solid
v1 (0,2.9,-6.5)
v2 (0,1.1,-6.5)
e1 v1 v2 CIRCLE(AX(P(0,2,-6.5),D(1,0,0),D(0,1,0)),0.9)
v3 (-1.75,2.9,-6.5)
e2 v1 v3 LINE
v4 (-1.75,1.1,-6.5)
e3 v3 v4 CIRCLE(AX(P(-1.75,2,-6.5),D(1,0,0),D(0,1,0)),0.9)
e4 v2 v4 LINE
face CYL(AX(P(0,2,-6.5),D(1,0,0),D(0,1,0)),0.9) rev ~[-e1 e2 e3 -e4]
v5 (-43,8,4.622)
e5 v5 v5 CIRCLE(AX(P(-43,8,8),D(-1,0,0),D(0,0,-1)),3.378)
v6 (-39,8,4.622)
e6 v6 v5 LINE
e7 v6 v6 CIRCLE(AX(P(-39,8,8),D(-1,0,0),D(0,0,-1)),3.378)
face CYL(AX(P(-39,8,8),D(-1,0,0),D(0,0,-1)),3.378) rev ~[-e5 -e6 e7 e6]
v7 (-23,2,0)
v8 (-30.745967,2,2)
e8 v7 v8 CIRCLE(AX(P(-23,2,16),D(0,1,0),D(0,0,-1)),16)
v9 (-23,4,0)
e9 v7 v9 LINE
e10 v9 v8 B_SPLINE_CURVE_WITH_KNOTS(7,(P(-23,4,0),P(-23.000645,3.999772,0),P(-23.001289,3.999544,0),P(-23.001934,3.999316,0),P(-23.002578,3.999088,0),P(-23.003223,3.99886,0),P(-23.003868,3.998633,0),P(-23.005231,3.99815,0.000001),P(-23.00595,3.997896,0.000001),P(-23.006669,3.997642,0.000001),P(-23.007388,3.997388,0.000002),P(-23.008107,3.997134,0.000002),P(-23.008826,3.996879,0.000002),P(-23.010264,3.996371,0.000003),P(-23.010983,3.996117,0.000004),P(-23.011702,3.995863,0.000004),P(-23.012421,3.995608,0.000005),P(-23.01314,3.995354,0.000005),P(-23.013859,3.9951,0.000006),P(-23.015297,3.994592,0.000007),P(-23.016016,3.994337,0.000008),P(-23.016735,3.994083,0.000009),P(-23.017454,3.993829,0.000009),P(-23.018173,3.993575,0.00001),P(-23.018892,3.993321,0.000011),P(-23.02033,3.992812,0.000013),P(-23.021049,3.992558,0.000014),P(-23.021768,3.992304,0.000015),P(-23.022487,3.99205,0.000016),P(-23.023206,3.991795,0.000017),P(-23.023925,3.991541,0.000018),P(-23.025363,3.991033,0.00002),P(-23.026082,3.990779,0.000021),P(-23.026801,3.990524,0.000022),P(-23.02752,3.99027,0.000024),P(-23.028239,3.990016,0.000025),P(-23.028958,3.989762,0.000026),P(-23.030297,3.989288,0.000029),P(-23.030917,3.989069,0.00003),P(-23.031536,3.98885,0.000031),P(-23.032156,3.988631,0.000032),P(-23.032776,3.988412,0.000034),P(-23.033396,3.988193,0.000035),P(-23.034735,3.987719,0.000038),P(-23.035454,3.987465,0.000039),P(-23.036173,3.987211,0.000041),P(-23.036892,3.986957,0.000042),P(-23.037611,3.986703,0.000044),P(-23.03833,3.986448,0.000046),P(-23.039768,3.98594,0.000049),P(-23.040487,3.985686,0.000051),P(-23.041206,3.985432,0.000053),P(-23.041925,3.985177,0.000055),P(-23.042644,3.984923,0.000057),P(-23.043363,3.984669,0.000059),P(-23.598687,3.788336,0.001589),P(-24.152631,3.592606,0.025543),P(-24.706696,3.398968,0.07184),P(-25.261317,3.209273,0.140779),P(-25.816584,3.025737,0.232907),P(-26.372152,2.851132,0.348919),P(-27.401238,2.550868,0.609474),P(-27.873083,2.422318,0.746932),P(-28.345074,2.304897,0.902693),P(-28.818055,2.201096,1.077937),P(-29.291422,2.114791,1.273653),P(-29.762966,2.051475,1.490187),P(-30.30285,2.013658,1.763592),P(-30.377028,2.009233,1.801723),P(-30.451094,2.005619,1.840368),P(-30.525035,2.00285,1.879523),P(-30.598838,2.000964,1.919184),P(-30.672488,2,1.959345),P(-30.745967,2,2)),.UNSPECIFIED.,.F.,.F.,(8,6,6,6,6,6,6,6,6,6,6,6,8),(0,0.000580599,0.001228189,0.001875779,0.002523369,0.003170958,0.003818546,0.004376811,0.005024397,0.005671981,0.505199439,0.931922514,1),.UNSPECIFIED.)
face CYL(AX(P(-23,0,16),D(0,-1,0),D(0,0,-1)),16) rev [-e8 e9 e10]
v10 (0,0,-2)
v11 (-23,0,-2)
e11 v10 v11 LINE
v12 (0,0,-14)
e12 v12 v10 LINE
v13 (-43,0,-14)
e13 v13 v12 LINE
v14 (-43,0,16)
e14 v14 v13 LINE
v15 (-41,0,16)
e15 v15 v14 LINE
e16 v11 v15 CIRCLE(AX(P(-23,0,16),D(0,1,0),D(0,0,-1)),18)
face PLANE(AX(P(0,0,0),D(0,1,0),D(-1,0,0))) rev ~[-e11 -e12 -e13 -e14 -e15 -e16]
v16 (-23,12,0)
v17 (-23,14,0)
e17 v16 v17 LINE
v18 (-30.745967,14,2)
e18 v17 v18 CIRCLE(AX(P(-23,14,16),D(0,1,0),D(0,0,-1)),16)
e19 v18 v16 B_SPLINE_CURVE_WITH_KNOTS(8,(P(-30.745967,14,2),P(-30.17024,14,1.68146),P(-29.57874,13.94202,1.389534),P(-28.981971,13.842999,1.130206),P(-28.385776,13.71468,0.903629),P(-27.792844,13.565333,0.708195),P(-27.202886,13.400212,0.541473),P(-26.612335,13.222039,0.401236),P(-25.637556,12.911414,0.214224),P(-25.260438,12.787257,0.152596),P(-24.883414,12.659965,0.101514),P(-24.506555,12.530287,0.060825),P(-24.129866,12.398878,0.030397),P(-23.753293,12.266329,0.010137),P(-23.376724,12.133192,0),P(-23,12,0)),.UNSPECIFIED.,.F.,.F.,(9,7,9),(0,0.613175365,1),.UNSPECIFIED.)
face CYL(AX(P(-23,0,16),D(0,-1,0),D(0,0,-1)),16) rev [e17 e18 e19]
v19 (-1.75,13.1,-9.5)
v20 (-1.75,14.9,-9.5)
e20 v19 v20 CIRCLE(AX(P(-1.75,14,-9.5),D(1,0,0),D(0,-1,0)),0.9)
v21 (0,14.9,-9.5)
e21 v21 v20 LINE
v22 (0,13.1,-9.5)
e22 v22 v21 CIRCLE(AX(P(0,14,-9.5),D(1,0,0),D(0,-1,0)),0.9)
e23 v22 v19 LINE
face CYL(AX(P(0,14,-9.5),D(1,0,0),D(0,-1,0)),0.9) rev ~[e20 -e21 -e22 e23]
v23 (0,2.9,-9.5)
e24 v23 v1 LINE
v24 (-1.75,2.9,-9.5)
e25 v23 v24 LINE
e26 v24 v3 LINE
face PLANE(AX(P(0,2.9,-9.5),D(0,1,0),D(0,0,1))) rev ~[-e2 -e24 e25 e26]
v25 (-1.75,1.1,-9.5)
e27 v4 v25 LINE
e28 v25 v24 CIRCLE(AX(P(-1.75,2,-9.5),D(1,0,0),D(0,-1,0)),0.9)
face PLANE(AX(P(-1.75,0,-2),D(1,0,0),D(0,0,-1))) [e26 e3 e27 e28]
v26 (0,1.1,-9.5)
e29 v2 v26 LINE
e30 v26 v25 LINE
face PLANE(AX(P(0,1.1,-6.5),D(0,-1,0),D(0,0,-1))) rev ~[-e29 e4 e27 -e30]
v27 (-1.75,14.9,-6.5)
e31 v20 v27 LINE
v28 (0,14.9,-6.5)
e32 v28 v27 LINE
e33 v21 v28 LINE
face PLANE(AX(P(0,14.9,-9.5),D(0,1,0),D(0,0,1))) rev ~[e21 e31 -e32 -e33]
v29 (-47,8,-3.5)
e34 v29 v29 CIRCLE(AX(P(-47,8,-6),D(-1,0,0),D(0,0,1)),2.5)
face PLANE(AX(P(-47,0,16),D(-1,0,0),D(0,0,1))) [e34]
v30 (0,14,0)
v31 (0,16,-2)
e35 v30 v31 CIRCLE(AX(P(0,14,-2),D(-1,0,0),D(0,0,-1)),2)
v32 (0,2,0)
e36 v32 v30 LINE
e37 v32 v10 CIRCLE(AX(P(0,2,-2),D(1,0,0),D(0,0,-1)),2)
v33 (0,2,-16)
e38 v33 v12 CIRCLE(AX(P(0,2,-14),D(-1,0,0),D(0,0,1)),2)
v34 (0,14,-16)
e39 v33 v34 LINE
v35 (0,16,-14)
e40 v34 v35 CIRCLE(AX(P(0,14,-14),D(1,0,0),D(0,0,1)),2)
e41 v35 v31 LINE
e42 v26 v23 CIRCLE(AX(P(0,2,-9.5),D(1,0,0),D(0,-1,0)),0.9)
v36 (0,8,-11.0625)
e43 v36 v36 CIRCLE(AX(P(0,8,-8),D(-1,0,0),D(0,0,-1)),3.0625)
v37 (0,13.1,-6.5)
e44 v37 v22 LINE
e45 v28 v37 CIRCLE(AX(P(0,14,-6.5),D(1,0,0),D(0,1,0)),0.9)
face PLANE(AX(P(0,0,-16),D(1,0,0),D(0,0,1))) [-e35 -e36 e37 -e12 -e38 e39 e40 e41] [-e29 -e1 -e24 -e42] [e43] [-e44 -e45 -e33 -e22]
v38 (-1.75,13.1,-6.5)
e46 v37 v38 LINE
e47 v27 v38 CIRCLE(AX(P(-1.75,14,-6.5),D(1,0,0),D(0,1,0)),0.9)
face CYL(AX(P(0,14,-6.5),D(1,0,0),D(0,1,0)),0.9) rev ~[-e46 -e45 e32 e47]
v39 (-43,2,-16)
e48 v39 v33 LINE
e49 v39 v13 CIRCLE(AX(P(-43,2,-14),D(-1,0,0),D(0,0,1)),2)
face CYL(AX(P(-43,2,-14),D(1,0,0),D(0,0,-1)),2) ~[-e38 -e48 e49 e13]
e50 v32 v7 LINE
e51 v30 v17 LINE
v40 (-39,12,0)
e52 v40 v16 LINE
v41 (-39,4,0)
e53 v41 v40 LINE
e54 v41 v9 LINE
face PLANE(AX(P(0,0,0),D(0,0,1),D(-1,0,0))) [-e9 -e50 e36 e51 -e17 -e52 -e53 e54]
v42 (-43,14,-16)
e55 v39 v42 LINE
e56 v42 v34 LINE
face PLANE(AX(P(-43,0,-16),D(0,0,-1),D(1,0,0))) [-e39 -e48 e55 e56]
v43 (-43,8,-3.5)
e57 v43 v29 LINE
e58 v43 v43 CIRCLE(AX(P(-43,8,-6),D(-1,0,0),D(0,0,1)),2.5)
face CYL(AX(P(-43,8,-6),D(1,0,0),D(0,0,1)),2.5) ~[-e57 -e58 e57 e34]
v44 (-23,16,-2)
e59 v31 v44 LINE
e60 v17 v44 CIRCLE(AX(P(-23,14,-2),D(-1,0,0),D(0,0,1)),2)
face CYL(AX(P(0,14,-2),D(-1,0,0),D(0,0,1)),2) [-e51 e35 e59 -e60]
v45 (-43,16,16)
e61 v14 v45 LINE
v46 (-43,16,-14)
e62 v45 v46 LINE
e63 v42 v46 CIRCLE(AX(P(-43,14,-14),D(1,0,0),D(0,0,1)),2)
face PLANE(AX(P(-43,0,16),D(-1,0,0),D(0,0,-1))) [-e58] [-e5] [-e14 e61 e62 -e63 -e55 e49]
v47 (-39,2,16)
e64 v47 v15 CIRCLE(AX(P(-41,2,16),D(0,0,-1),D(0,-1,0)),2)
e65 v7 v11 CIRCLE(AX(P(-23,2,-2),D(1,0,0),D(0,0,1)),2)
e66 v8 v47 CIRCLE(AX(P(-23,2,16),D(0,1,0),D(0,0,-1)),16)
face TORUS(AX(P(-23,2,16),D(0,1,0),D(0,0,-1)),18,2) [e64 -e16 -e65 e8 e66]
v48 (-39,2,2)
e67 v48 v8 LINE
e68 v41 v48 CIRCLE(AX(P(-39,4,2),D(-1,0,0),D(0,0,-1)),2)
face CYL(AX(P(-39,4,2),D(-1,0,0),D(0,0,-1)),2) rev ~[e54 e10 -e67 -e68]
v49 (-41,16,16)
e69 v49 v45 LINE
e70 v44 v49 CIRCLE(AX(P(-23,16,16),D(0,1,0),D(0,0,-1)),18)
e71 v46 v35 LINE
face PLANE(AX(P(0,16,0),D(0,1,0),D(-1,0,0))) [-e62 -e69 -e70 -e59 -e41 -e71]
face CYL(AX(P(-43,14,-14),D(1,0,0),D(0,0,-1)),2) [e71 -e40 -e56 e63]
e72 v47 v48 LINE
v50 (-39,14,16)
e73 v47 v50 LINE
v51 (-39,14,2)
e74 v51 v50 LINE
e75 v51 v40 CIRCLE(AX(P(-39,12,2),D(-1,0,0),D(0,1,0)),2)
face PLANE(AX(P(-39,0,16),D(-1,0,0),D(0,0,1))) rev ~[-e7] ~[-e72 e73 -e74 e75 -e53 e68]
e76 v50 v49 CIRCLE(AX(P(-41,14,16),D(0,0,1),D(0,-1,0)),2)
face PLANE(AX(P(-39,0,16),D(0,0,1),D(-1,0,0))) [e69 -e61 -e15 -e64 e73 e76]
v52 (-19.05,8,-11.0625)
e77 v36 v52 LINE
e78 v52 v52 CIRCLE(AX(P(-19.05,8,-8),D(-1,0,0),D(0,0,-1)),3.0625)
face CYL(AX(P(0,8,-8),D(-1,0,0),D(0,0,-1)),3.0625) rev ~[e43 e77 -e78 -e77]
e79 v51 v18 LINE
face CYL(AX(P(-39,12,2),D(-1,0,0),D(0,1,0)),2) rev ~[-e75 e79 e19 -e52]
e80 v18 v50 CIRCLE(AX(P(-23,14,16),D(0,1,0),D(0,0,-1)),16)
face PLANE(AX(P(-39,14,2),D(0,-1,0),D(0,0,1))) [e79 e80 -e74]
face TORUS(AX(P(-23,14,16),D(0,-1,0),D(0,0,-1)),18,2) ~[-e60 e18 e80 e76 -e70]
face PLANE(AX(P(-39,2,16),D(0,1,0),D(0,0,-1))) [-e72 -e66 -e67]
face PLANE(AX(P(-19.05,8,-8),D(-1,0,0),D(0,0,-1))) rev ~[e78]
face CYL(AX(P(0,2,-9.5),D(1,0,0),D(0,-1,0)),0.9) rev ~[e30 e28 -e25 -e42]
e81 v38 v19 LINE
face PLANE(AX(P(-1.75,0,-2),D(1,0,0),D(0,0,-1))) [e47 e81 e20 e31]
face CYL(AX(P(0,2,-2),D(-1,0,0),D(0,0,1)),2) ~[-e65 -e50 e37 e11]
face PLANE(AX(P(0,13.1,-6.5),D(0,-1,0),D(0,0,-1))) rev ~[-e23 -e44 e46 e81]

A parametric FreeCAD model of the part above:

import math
import FreeCAD as App
import Part
import Sketcher


def edges_at(feature, points):
    """Names of the edges that pass closest to the given points."""
    edges = feature.Shape.Edges
    near = lambda p: min(range(len(edges)), key=lambda i: edges[i].distToShape(Part.Vertex(*p))[0])
    return sorted({f"Edge{near(p) + 1}" for p in points})

doc = App.newDocument("Part")
body = doc.addObject("PartDesign::Body", "Body")

# Sketch on XZ plane
sketch1 = doc.addObject("Sketcher::SketchObject", "Sketch")
body.addObject(sketch1)
sketch1.AttachmentSupport = (doc.XZ_Plane, [""])
sketch1.MapMode = "FlatFace"
sketch1.addGeometry(Part.LineSegment(App.Vector(-43, -16, 0), App.Vector(-43, 16, 0)), False)
sketch1.addGeometry(Part.LineSegment(App.Vector(-43, 16, 0), App.Vector(-39, 16, 0)), False)
sketch1.addGeometry(Part.ArcOfCircle(Part.Circle(App.Vector(-23, 16, 0), App.Vector(0, 0, 1), 16), math.radians(180), math.radians(270)), False)
sketch1.addGeometry(Part.LineSegment(App.Vector(-23, 0, 0), App.Vector(0, 0, 0)), False)
sketch1.addGeometry(Part.LineSegment(App.Vector(0, 0, 0), App.Vector(0, -16, 0)), False)
sketch1.addGeometry(Part.LineSegment(App.Vector(0, -16, 0), App.Vector(-43, -16, 0)), False)
sketch1.addConstraint(Sketcher.Constraint("Coincident", 0, 2, 1, 1))
sketch1.addConstraint(Sketcher.Constraint("Coincident", 1, 2, 2, 1))
sketch1.addConstraint(Sketcher.Constraint("Tangent", 2, 2, 3, 1))
sketch1.addConstraint(Sketcher.Constraint("Coincident", 3, 2, 4, 1))
sketch1.addConstraint(Sketcher.Constraint("Coincident", 4, 2, 5, 1))
sketch1.addConstraint(Sketcher.Constraint("Coincident", 5, 2, 0, 1))
sketch1.addConstraint(Sketcher.Constraint("Vertical", 0))
sketch1.addConstraint(Sketcher.Constraint("Horizontal", 1))
sketch1.addConstraint(Sketcher.Constraint("Horizontal", 3))
sketch1.addConstraint(Sketcher.Constraint("Vertical", 4))
sketch1.addConstraint(Sketcher.Constraint("Horizontal", 5))
sketch1.addConstraint(Sketcher.Constraint("Coincident", 3, 2, -1, 1))
sketch1.addConstraint(Sketcher.Constraint("Horizontal", 2, 3, 0, 2))
sketch1.addConstraint(Sketcher.Constraint("Radius", 2, 16.0))
sketch1.addConstraint(Sketcher.Constraint("DistanceX", 1, 1, 1, 2, 4.0))
sketch1.addConstraint(Sketcher.Constraint("DistanceX", 5, 2, 5, 1, 43.0))
sketch1.addConstraint(Sketcher.Constraint("DistanceY", 0, 1, 0, 2, 32.0))
pad1 = doc.addObject("PartDesign::Pad", "Pad")
body.addObject(pad1)
pad1.Profile = sketch1
pad1.Length = 16
pad1.Reversed = True
doc.recompute()

fillet = doc.addObject("PartDesign::Fillet", "Fillet")
body.addObject(fillet)
fillet.Base = (pad1, edges_at(pad1, [
    (-34.314, 16, 4.686),
    (-11.5, 16, 0),
    (-21.5, 16, -16),
    (-21.5, 0, -16),
    (-34.314, 0, 4.686),
    (-11.5, 0, 0),
]))
fillet.Radius = 2

# Sketch on YZ plane
sketch2 = doc.addObject("Sketcher::SketchObject", "Sketch001")
body.addObject(sketch2)
sketch2.AttachmentSupport = (doc.YZ_Plane, [""])
sketch2.MapMode = "FlatFace"
sketch2.AttachmentOffset = App.Placement(App.Vector(0, 0, -39), App.Rotation())
sketch2.addGeometry(Part.LineSegment(App.Vector(14, 16, 0), App.Vector(14, 2, 0)), False)
sketch2.addGeometry(Part.ArcOfCircle(Part.Circle(App.Vector(12, 2, 0), App.Vector(0, 0, 1), 2), math.radians(-90), math.radians(0)), False)
sketch2.addGeometry(Part.LineSegment(App.Vector(12, 0, 0), App.Vector(4, 0, 0)), False)
sketch2.addGeometry(Part.ArcOfCircle(Part.Circle(App.Vector(4, 2, 0), App.Vector(0, 0, 1), 2), math.radians(180), math.radians(270)), False)
sketch2.addGeometry(Part.LineSegment(App.Vector(2, 2, 0), App.Vector(2, 16, 0)), False)
sketch2.addGeometry(Part.LineSegment(App.Vector(2, 16, 0), App.Vector(14, 16, 0)), False)
sketch2.addConstraint(Sketcher.Constraint("Tangent", 0, 2, 1, 2))
sketch2.addConstraint(Sketcher.Constraint("Tangent", 1, 1, 2, 1))
sketch2.addConstraint(Sketcher.Constraint("Tangent", 2, 2, 3, 2))
sketch2.addConstraint(Sketcher.Constraint("Tangent", 3, 1, 4, 1))
sketch2.addConstraint(Sketcher.Constraint("Coincident", 4, 2, 5, 1))
sketch2.addConstraint(Sketcher.Constraint("Coincident", 5, 2, 0, 1))
sketch2.addConstraint(Sketcher.Constraint("Vertical", 0))
sketch2.addConstraint(Sketcher.Constraint("Horizontal", 2))
sketch2.addConstraint(Sketcher.Constraint("Vertical", 4))
sketch2.addConstraint(Sketcher.Constraint("Horizontal", 5))
sketch2.addConstraint(Sketcher.Constraint("Equal", 1, 3))
sketch2.addConstraint(Sketcher.Constraint("PointOnObject", 1, 1, -1))
sketch2.addConstraint(Sketcher.Constraint("Radius", 1, 2.0))
sketch2.addConstraint(Sketcher.Constraint("DistanceX", -1, 1, 3, 1, 2.0))
sketch2.addConstraint(Sketcher.Constraint("DistanceY", -1, 1, 4, 2, 16.0))
sketch2.addConstraint(Sketcher.Constraint("DistanceX", 2, 2, 2, 1, 8.0))
pocket1 = doc.addObject("PartDesign::Pocket", "Pocket")
body.addObject(pocket1)
pocket1.Profile = sketch2
pocket1.Length = 16
pocket1.Reversed = True

# Sketch on YZ plane
sketch3 = doc.addObject("Sketcher::SketchObject", "Sketch002")
body.addObject(sketch3)
sketch3.AttachmentSupport = (doc.YZ_Plane, [""])
sketch3.MapMode = "FlatFace"
sketch3.AttachmentOffset = App.Placement(App.Vector(0, 0, -39), App.Rotation())
sketch3.addGeometry(Part.Circle(App.Vector(8, 8, 0), App.Vector(0, 0, 1), 3.378), False)
sketch3.addConstraint(Sketcher.Constraint("Diameter", 0, 6.756))
sketch3.addConstraint(Sketcher.Constraint("DistanceX", -1, 1, 0, 3, 8.0))
sketch3.addConstraint(Sketcher.Constraint("DistanceY", -1, 1, 0, 3, 8.0))
doc.recompute()
hole = doc.addObject("PartDesign::Hole", "Hole")
body.addObject(hole)
hole.Profile = sketch3
hole.ThreadType = "None"
hole.Diameter = 6.756
hole.DepthType = "Dimension"
hole.Depth = 8.8
hole.DrillPoint = "Flat"

# Sketch on YZ plane
sketch4 = doc.addObject("Sketcher::SketchObject", "Sketch003")
body.addObject(sketch4)
sketch4.AttachmentSupport = (doc.YZ_Plane, [""])
sketch4.MapMode = "FlatFace"
sketch4.addGeometry(Part.ArcOfCircle(Part.Circle(App.Vector(14, -6.5, 0), App.Vector(0, 0, 1), 0.9), math.radians(0), math.radians(180)), False)
sketch4.addGeometry(Part.LineSegment(App.Vector(13.1, -6.5, 0), App.Vector(13.1, -9.5, 0)), False)
sketch4.addGeometry(Part.ArcOfCircle(Part.Circle(App.Vector(14, -9.5, 0), App.Vector(0, 0, 1), 0.9), math.radians(180), math.radians(360)), False)
sketch4.addGeometry(Part.LineSegment(App.Vector(14.9, -9.5, 0), App.Vector(14.9, -6.5, 0)), False)
sketch4.addGeometry(Part.ArcOfCircle(Part.Circle(App.Vector(2, -9.5, 0), App.Vector(0, 0, 1), 0.9), math.radians(180), math.radians(360)), False)
sketch4.addGeometry(Part.LineSegment(App.Vector(2.9, -9.5, 0), App.Vector(2.9, -6.5, 0)), False)
sketch4.addGeometry(Part.ArcOfCircle(Part.Circle(App.Vector(2, -6.5, 0), App.Vector(0, 0, 1), 0.9), math.radians(0), math.radians(180)), False)
sketch4.addGeometry(Part.LineSegment(App.Vector(1.1, -6.5, 0), App.Vector(1.1, -9.5, 0)), False)
sketch4.addConstraint(Sketcher.Constraint("Tangent", 0, 2, 1, 1))
sketch4.addConstraint(Sketcher.Constraint("Tangent", 1, 2, 2, 1))
sketch4.addConstraint(Sketcher.Constraint("Tangent", 2, 2, 3, 1))
sketch4.addConstraint(Sketcher.Constraint("Tangent", 3, 2, 0, 1))
sketch4.addConstraint(Sketcher.Constraint("Tangent", 4, 2, 5, 1))
sketch4.addConstraint(Sketcher.Constraint("Tangent", 5, 2, 6, 1))
sketch4.addConstraint(Sketcher.Constraint("Tangent", 6, 2, 7, 1))
sketch4.addConstraint(Sketcher.Constraint("Tangent", 7, 2, 4, 1))
sketch4.addConstraint(Sketcher.Constraint("Vertical", 1))
sketch4.addConstraint(Sketcher.Constraint("Vertical", 3))
sketch4.addConstraint(Sketcher.Constraint("Vertical", 5))
sketch4.addConstraint(Sketcher.Constraint("Vertical", 7))
sketch4.addConstraint(Sketcher.Constraint("Equal", 2, 4))
sketch4.addConstraint(Sketcher.Constraint("Horizontal", 2, 3, 4, 3))
sketch4.addConstraint(Sketcher.Constraint("Horizontal", 0, 3, 6, 3))
sketch4.addConstraint(Sketcher.Constraint("Radius", 0, 0.9))
sketch4.addConstraint(Sketcher.Constraint("DistanceY", 1, 2, 1, 1, 3.0))
sketch4.addConstraint(Sketcher.Constraint("DistanceX", 4, 3, 2, 3, 12.0))
sketch4.addConstraint(Sketcher.Constraint("DistanceX", -1, 1, 0, 3, 14.0))
sketch4.addConstraint(Sketcher.Constraint("DistanceY", 0, 3, -1, 1, 6.5))
pocket2 = doc.addObject("PartDesign::Pocket", "Pocket001")
body.addObject(pocket2)
pocket2.Profile = sketch4
pocket2.Length = 1.75

# Sketch on YZ plane
sketch5 = doc.addObject("Sketcher::SketchObject", "Sketch004")
body.addObject(sketch5)
sketch5.AttachmentSupport = (doc.YZ_Plane, [""])
sketch5.MapMode = "FlatFace"
sketch5.addGeometry(Part.Circle(App.Vector(8, -8, 0), App.Vector(0, 0, 1), 3.0625), False)
sketch5.addConstraint(Sketcher.Constraint("Diameter", 0, 6.125))
sketch5.addConstraint(Sketcher.Constraint("DistanceX", -1, 1, 0, 3, 8.0))
sketch5.addConstraint(Sketcher.Constraint("DistanceY", 0, 3, -1, 1, 8.0))
doc.recompute()
hole2 = doc.addObject("PartDesign::Hole", "Hole001")
body.addObject(hole2)
hole2.Profile = sketch5
hole2.ThreadType = "None"
hole2.Diameter = 6.125
hole2.DepthType = "Dimension"
hole2.Depth = 19.05
hole2.DrillPoint = "Flat"

# Sketch on YZ plane
sketch6 = doc.addObject("Sketcher::SketchObject", "Sketch005")
body.addObject(sketch6)
sketch6.AttachmentSupport = (doc.YZ_Plane, [""])
sketch6.MapMode = "FlatFace"
sketch6.AttachmentOffset = App.Placement(App.Vector(0, 0, -43), App.Rotation())
sketch6.addGeometry(Part.Circle(App.Vector(8, -6, 0), App.Vector(0, 0, 1), 2.5), False)
sketch6.addConstraint(Sketcher.Constraint("Diameter", 0, 5.0))
sketch6.addConstraint(Sketcher.Constraint("DistanceX", -1, 1, 0, 3, 8.0))
sketch6.addConstraint(Sketcher.Constraint("DistanceY", 0, 3, -1, 1, 6.0))
pad2 = doc.addObject("PartDesign::Pad", "Pad001")
body.addObject(pad2)
pad2.Profile = sketch6
pad2.Length = 4
pad2.Reversed = True

doc.recompute()
